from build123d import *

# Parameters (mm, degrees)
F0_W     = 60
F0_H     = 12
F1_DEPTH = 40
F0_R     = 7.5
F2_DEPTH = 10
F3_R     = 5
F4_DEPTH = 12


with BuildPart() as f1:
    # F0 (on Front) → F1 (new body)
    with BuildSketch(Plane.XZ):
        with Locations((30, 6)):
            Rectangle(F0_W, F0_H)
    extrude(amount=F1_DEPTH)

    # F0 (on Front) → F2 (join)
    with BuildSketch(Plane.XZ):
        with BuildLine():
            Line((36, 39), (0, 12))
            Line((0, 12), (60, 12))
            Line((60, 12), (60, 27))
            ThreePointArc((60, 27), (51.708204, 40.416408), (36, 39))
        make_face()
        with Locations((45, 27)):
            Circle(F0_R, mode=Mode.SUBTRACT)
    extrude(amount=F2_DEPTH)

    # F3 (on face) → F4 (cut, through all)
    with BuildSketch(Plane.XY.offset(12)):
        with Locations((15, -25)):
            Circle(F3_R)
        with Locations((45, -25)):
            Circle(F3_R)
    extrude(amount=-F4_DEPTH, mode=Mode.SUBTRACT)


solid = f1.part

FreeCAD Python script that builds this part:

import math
import FreeCAD as App
import Part
import Sketcher
Q = App.Units.Quantity


def add_polygon(sketch, points):
    """Adds a closed chain of lines whose ends are joined by coincident constraints."""
    first, n = sketch.GeometryCount, len(points)
    for a, b in zip(points, points[1:] + points[:1]):
        sketch.addGeometry(Part.LineSegment(App.Vector(*a, 0), App.Vector(*b, 0)), False)
    for i in range(n):
        sketch.addConstraint(Sketcher.Constraint("Coincident", first + i, 2, first + (i + 1) % n, 1))

doc = App.newDocument("Part")
body = doc.addObject("PartDesign::Body", "Body")

# Sketch on XZ plane
sketch1 = body.newObject("Sketcher::SketchObject", "Sketch")
sketch1.AttachmentSupport = (doc.getObject("XZ_Plane"), [""])
sketch1.MapMode = "FlatFace"
add_polygon(sketch1, [(0, 12), (0, 0), (60, 0), (60, 12)])  # lines 0-3
sketch1.addConstraint([
    Sketcher.Constraint("Vertical", 0),
    Sketcher.Constraint("Horizontal", 1),
    Sketcher.Constraint("Vertical", 2),
    Sketcher.Constraint("Horizontal", 3),
    Sketcher.Constraint("Coincident", 0, 2, -1, 1),
    Sketcher.Constraint("DistanceX", 1, 1, 1, 2, Q("60 mm")),
    Sketcher.Constraint("DistanceY", 0, 2, 0, 1, Q("12 mm")),
])
pad1 = body.newObject("PartDesign::Pad", "Pad")
pad1.Profile = sketch1
pad1.Length = 40

# Sketch on XZ plane
sketch2 = body.newObject("Sketcher::SketchObject", "Sketch001")
sketch2.AttachmentSupport = (doc.getObject("XZ_Plane"), [""])
sketch2.MapMode = "FlatFace"
sketch2.addGeometry([
    Part.LineSegment(App.Vector(36, 39, 0), App.Vector(0, 12, 0)),  # 0
    Part.LineSegment(App.Vector(0, 12, 0), App.Vector(60, 12, 0)),  # 1
    Part.LineSegment(App.Vector(60, 12, 0), App.Vector(60, 27, 0)),  # 2
    Part.ArcOfCircle(Part.Circle(App.Vector(45, 27, 0), App.Vector(0, 0, 1), 15), math.radians(0), math.radians(127)),  # 3
    Part.Circle(App.Vector(45, 27, 0), App.Vector(0, 0, 1), 8),  # 4
], False)
sketch2.addConstraint([
    Sketcher.Constraint("Coincident", 0, 2, 1, 1),
    Sketcher.Constraint("Coincident", 1, 2, 2, 1),
    Sketcher.Constraint("Tangent", 2, 2, 3, 1),
    Sketcher.Constraint("Tangent", 3, 2, 0, 1),
    Sketcher.Constraint("Horizontal", 1),
    Sketcher.Constraint("Vertical", 2),
    Sketcher.Constraint("Coincident", 4, 3, 3, 3),
    Sketcher.Constraint("PointOnObject", 0, 2, -2),
    Sketcher.Constraint("Diameter", 4, Q("15 mm")),
    Sketcher.Constraint("Radius", 3, Q("15 mm")),
    Sketcher.Constraint("DistanceX", 1, 1, 1, 2, Q("60 mm")),
    Sketcher.Constraint("DistanceY", 2, 1, 2, 2, Q("15 mm")),
    Sketcher.Constraint("DistanceY", -1, 1, 3, 3, Q("27 mm")),
])
pad2 = body.newObject("PartDesign::Pad", "Pad001")
pad2.Profile = sketch2
pad2.Length = 10

# Sketch on XY plane
sketch3 = body.newObject("Sketcher::SketchObject", "Sketch002")
sketch3.AttachmentSupport = (doc.getObject("XY_Plane"), [""])
sketch3.MapMode = "FlatFace"
sketch3.AttachmentOffset = App.Placement(App.Vector(0, 0, 12), App.Rotation())
sketch3.addGeometry([
    Part.Circle(App.Vector(15, -25, 0), App.Vector(0, 0, 1), 5),
    Part.Circle(App.Vector(45, -25, 0), App.Vector(0, 0, 1), 5),
], False)
sketch3.addConstraint([
    Sketcher.Constraint("Equal", 0, 1),
    Sketcher.Constraint("Horizontal", 0, 3, 1, 3),
    Sketcher.Constraint("Diameter", 0, Q("10 mm")),
    Sketcher.Constraint("DistanceX", -1, 1, 0, 3, Q("15 mm")),
    Sketcher.Constraint("DistanceY", 0, 3, -1, 1, Q("25 mm")),
    Sketcher.Constraint("DistanceX", -1, 1, 1, 3, Q("45 mm")),
])
pocket1 = body.newObject("PartDesign::Pocket", "Pocket")
pocket1.Profile = sketch3
pocket1.Type = "ThroughAll"

doc.recompute()
